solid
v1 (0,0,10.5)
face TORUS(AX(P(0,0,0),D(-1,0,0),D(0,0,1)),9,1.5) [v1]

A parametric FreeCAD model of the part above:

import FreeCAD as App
import Part
import Sketcher

V = App.Vector

doc = App.newDocument("Part")
body = doc.addObject("PartDesign::Body", "Body")

# Sketch on XY plane
sketch1 = body.newObject("Sketcher::SketchObject", "Sketch")
sketch1.AttachmentSupport = (doc.getObject("XY_Plane"), [""])
sketch1.MapMode = "FlatFace"
sketch1.addGeometry(Part.Circle(V(0, 9, 0), V(0, 0, 1), 1.5), False)
sketch1.addConstraint(Sketcher.Constraint("PointOnObject", 0, 3, -2))
sketch1.addConstraint(Sketcher.Constraint("Diameter", 0, 3.0))
sketch1.addConstraint(Sketcher.Constraint("DistanceY", -1, 1, 0, 3, 9.0))
revolution = body.newObject("PartDesign::Revolution", "Revolution")
revolution.Profile = sketch1
revolution.ReferenceAxis = (sketch1, ["H_Axis"])
revolution.Angle = 360

doc.recompute()
